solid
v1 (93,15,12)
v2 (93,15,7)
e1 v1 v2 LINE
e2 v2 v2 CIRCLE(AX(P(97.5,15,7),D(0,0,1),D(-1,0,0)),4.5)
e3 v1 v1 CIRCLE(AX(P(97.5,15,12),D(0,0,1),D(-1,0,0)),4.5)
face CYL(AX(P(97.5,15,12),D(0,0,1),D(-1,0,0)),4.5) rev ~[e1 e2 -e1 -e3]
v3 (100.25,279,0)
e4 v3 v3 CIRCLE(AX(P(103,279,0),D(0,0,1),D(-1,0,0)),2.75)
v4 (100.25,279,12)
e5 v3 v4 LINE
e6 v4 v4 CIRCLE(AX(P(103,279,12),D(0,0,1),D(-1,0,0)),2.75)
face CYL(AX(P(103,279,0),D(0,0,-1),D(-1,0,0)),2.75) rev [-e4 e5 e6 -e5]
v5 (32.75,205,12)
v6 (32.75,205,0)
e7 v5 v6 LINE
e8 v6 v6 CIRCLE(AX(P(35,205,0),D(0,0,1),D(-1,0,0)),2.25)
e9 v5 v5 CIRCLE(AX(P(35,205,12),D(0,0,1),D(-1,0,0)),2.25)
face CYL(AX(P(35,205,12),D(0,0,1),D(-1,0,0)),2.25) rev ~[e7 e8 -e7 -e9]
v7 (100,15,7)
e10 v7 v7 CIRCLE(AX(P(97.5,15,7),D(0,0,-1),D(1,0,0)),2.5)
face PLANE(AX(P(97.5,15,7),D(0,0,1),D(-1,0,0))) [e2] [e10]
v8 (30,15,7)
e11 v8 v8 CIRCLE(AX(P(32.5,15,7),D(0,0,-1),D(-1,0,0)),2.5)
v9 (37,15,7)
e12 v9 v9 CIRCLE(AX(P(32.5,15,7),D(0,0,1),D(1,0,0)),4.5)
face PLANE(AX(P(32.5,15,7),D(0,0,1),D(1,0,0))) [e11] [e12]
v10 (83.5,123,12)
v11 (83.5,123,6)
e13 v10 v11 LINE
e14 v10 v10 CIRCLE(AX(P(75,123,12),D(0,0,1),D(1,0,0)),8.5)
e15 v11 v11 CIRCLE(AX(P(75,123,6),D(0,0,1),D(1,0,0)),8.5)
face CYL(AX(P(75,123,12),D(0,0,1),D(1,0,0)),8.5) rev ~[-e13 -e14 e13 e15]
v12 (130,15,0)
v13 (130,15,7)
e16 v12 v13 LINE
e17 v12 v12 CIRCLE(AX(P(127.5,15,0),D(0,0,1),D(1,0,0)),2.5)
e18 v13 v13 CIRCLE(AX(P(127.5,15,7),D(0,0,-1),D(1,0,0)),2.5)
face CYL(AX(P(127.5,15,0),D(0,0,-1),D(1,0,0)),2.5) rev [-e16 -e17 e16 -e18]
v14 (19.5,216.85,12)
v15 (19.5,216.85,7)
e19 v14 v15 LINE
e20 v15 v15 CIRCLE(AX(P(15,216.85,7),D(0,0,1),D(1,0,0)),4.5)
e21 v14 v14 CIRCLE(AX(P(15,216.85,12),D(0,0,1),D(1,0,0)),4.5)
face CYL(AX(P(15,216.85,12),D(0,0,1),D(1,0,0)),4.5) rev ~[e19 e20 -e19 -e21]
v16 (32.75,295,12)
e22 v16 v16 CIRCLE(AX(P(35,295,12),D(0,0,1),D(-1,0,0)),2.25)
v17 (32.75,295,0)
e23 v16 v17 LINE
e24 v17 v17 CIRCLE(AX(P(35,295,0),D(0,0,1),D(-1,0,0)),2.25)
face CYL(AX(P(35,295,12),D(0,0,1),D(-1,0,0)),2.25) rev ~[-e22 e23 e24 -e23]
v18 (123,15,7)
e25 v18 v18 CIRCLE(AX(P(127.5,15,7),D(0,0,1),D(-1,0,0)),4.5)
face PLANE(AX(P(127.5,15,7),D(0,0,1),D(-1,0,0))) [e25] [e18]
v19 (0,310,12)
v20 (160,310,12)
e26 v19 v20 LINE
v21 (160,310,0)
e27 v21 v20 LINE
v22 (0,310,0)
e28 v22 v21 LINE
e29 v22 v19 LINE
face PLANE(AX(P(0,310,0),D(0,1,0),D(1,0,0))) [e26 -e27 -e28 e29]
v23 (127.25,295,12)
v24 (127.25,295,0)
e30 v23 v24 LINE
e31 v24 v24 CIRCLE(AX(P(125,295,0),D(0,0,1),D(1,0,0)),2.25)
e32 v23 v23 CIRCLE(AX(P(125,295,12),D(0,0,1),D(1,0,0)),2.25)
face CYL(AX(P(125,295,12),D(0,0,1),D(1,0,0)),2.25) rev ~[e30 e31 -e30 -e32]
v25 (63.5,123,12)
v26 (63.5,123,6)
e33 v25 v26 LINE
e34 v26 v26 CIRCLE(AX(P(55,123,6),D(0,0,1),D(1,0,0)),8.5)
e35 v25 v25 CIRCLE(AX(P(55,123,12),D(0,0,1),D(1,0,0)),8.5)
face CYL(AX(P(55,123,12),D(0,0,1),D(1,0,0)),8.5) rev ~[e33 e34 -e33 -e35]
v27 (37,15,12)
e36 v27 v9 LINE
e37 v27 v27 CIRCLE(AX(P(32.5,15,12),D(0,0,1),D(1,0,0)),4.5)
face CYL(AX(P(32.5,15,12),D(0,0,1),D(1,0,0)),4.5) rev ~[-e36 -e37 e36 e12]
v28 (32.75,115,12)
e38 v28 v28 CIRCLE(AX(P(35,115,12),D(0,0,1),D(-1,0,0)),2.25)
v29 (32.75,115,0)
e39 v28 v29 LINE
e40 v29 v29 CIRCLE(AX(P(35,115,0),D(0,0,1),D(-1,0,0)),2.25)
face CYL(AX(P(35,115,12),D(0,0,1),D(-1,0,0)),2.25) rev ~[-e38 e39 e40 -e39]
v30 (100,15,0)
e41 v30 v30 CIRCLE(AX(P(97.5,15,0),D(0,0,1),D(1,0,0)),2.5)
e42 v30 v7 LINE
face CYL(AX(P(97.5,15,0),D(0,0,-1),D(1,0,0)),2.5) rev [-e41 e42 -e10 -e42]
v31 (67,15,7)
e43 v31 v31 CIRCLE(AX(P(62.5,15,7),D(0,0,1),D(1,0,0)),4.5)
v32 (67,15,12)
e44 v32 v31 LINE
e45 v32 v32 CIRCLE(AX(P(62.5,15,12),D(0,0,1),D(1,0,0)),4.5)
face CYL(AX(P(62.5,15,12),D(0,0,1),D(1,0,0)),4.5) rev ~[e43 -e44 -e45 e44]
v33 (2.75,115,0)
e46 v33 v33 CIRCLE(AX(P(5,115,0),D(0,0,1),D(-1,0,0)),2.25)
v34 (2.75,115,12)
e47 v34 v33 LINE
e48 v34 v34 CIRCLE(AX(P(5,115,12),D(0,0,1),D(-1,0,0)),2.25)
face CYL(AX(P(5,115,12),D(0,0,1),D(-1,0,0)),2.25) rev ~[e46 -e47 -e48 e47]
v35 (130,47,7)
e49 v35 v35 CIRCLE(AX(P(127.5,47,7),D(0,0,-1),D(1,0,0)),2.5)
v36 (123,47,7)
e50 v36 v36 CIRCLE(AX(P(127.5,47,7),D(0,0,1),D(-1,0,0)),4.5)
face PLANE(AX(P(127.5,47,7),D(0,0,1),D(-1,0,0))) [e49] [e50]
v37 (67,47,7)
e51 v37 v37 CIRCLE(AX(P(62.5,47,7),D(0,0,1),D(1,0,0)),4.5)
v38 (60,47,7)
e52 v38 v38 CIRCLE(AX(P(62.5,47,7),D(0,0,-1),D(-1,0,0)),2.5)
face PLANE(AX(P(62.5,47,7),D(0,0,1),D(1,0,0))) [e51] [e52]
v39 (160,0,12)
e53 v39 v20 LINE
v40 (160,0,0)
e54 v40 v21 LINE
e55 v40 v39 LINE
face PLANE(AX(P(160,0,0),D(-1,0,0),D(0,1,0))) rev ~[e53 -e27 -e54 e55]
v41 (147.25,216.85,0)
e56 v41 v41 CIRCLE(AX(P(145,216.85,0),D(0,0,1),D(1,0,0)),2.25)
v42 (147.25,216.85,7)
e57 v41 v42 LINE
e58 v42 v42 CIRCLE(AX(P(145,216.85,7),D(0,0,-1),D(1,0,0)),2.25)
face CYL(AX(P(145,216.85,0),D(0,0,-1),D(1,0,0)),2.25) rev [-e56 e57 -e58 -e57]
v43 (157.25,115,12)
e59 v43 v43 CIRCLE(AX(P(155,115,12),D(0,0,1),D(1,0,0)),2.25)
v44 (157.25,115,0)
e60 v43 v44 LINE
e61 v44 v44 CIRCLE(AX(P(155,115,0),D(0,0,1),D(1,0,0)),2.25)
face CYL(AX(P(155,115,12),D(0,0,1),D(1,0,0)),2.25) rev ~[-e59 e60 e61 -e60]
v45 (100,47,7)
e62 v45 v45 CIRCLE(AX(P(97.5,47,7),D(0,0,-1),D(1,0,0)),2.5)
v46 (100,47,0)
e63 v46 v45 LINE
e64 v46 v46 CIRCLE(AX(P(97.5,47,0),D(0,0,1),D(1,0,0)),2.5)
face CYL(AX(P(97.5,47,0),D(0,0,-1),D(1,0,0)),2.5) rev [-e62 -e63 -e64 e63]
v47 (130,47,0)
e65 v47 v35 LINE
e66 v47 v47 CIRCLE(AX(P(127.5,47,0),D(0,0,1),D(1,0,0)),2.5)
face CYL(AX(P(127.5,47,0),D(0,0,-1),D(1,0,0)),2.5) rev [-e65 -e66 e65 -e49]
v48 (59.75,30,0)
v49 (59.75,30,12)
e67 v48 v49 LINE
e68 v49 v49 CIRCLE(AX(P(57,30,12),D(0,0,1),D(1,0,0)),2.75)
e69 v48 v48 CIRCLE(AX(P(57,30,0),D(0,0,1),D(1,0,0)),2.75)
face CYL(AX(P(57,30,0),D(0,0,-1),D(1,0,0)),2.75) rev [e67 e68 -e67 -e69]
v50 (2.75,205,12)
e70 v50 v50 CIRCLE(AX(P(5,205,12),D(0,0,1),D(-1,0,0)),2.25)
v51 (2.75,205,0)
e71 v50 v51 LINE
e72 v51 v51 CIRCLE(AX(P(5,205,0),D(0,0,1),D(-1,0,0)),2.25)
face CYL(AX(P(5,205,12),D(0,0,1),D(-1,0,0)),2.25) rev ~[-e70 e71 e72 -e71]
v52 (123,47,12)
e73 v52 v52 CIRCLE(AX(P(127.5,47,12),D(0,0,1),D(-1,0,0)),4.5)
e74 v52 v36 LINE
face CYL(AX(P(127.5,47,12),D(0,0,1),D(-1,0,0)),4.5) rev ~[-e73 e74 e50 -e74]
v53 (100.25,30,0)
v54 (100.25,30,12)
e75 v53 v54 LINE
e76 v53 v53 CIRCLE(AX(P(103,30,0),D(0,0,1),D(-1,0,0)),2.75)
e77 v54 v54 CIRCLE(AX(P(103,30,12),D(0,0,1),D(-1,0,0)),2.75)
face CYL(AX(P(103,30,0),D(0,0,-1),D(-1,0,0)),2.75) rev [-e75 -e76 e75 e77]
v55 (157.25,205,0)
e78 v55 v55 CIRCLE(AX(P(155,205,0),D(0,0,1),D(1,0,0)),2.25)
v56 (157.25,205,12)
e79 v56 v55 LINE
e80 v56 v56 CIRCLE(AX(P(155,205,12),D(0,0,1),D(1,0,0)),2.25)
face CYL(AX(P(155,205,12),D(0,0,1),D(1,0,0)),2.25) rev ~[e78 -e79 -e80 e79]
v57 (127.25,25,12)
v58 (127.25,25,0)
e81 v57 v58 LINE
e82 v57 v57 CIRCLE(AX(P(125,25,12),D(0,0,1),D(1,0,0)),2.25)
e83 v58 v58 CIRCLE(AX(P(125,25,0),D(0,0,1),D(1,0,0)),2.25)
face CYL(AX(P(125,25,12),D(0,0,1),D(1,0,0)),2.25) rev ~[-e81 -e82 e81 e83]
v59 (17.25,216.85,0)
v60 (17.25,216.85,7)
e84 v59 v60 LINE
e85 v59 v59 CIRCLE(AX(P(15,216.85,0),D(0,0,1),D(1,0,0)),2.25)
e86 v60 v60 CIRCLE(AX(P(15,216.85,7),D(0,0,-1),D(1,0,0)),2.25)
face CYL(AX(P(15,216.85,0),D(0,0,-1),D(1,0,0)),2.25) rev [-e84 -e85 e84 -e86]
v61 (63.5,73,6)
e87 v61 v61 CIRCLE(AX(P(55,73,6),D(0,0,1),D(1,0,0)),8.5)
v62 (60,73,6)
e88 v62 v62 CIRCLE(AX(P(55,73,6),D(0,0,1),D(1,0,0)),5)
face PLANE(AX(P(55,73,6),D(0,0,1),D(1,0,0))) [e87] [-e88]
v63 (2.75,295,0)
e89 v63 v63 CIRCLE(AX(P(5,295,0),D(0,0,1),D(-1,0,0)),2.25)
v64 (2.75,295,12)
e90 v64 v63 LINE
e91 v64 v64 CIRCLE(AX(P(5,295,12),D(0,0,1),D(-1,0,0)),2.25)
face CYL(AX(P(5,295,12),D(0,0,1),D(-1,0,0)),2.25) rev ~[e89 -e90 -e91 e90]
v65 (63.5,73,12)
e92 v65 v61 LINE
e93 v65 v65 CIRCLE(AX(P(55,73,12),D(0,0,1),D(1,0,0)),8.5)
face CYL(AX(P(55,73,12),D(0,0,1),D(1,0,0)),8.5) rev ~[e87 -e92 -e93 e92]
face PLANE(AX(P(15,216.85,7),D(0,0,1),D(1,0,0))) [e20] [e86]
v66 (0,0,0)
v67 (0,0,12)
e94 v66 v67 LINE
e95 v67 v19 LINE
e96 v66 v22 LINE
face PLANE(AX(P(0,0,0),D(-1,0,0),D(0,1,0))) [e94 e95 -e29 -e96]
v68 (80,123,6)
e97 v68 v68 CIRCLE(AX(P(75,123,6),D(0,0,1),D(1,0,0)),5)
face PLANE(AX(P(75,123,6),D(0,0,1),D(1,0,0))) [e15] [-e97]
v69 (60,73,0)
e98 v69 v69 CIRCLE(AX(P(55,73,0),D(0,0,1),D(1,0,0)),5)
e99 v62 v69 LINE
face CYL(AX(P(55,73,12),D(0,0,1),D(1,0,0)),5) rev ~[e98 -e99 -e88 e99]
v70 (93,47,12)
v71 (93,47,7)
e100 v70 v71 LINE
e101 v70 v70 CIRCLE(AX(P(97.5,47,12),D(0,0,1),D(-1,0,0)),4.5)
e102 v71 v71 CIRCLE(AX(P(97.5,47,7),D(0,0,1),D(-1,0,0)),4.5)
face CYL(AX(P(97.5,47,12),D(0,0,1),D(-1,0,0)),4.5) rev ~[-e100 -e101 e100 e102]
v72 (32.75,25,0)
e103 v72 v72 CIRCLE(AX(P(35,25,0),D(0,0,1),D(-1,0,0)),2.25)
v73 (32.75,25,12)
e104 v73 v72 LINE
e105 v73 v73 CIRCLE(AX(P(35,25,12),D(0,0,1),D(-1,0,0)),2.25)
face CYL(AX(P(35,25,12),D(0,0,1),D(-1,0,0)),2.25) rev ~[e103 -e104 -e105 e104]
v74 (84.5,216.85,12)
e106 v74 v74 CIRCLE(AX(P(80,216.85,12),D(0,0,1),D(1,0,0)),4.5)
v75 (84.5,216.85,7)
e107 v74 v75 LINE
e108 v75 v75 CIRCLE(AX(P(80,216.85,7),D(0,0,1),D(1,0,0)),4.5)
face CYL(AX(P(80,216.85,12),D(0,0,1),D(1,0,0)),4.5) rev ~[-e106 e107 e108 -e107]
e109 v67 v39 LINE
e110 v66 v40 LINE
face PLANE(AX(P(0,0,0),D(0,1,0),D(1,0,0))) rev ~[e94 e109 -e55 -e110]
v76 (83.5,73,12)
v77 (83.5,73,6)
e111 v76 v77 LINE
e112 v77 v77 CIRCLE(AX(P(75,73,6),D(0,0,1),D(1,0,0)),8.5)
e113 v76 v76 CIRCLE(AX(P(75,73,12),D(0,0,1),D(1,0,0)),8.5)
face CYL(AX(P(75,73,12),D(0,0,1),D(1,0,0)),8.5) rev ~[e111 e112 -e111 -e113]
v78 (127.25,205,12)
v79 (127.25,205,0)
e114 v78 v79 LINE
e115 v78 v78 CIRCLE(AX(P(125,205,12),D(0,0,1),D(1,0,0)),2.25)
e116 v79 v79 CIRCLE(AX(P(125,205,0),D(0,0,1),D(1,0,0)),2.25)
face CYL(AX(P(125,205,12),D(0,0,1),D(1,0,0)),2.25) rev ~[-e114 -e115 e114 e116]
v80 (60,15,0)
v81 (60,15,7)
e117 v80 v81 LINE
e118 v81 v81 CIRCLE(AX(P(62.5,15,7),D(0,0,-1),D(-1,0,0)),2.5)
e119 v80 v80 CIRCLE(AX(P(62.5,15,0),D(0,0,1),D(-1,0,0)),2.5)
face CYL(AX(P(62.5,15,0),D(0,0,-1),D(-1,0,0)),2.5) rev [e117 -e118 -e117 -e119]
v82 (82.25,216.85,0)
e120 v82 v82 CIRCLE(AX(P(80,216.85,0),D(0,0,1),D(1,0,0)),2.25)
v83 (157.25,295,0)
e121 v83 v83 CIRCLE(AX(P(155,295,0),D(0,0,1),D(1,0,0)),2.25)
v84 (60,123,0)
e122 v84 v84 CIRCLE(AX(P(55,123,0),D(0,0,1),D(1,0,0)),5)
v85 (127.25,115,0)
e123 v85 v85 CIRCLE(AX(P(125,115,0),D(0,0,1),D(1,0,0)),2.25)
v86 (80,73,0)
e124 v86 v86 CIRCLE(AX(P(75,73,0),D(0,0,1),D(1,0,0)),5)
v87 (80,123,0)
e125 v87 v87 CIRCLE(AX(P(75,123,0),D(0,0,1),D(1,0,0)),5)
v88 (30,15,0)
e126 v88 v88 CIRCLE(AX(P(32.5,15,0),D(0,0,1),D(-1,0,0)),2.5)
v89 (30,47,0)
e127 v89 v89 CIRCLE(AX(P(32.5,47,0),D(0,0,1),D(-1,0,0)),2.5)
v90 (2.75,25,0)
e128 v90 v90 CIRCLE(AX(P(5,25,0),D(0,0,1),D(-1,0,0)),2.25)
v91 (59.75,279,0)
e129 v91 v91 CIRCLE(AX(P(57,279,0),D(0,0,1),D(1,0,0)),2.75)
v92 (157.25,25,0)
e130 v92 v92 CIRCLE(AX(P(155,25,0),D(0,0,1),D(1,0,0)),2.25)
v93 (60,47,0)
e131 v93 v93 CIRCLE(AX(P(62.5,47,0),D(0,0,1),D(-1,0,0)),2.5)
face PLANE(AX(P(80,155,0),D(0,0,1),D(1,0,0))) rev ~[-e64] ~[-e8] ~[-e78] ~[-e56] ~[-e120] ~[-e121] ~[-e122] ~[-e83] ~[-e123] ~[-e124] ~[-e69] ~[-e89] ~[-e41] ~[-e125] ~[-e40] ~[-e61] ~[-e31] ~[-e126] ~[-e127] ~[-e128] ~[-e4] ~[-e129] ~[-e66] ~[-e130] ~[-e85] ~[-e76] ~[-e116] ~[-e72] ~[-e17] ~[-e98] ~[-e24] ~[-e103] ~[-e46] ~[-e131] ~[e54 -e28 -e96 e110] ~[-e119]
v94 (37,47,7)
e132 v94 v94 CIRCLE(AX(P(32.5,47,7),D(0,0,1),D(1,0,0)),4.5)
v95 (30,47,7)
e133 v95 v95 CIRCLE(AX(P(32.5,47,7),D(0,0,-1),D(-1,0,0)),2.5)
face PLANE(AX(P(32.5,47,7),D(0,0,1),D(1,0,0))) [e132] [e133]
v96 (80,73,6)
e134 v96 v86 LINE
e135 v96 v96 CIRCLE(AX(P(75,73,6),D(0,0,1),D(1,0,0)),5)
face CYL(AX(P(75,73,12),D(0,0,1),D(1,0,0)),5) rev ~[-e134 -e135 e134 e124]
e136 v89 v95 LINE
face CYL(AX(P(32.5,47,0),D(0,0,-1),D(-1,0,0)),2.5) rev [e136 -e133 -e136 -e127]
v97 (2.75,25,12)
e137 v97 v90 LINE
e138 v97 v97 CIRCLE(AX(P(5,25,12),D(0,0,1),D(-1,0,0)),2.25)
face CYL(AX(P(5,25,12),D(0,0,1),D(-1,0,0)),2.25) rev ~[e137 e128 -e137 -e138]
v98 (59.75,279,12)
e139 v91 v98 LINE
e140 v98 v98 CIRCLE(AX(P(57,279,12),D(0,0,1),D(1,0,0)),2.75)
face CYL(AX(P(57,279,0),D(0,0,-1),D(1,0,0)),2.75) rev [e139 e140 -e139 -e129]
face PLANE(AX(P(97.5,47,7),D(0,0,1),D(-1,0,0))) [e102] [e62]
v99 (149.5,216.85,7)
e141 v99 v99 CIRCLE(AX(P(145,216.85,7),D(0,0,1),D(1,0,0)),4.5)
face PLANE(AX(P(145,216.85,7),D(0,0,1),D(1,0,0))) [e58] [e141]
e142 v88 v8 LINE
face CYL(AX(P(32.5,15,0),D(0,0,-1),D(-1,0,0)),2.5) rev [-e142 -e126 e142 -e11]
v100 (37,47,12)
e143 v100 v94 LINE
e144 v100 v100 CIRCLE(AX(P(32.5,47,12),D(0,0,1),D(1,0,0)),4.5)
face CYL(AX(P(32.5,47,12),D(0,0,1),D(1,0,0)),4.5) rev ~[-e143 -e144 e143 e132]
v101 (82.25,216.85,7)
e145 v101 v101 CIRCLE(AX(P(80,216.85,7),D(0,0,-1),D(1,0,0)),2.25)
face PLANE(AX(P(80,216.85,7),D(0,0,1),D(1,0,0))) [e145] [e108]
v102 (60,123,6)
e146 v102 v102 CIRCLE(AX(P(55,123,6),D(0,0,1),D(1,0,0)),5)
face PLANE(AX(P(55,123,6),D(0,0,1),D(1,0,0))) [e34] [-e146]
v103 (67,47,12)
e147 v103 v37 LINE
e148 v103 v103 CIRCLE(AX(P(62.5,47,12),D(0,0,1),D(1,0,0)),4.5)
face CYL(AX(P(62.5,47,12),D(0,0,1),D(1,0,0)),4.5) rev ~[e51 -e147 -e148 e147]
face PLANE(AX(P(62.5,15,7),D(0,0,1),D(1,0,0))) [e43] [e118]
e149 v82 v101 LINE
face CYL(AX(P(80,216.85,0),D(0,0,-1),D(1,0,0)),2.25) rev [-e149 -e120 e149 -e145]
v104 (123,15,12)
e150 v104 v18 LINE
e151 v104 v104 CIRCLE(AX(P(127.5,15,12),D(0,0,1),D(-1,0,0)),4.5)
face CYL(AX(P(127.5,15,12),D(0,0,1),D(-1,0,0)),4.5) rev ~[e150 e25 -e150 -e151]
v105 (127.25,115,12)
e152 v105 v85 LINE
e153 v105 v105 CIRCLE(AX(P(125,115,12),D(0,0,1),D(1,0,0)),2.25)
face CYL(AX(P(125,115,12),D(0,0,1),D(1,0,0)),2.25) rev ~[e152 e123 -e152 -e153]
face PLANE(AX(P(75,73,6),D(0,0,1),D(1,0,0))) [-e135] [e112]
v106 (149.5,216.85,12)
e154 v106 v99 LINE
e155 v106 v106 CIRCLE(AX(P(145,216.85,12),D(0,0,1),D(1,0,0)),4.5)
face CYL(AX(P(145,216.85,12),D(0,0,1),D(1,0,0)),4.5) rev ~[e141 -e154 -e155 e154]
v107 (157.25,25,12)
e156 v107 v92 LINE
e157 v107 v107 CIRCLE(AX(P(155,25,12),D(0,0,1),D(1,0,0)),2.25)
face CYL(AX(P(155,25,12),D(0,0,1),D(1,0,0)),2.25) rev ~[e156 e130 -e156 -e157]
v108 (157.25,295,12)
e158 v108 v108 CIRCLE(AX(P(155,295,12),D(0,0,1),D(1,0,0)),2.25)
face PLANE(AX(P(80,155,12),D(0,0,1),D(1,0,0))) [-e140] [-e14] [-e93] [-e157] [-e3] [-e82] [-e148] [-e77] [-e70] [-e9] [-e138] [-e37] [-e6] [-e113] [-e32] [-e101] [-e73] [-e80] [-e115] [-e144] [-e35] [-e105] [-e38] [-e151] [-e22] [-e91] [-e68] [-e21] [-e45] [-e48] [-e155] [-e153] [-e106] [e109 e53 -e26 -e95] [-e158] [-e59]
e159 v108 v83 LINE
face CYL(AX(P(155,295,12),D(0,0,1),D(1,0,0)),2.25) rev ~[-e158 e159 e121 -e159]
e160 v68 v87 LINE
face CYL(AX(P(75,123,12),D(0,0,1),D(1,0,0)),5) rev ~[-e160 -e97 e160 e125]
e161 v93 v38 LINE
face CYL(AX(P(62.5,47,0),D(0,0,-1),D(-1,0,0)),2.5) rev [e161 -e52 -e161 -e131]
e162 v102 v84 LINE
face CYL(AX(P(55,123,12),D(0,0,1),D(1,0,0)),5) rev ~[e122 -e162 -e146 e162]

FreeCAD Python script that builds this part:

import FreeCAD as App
import Part
import Sketcher


def add_polygon(sketch, points):
    """Adds a closed chain of lines whose ends are joined by coincident constraints."""
    first, n = sketch.GeometryCount, len(points)
    for a, b in zip(points, points[1:] + points[:1]):
        sketch.addGeometry(Part.LineSegment(App.Vector(*a, 0), App.Vector(*b, 0)), False)
    for i in range(n):
        sketch.addConstraint(Sketcher.Constraint("Coincident", first + i, 2, first + (i + 1) % n, 1))

doc = App.newDocument("Part")
body = doc.addObject("PartDesign::Body", "Body")

# Sketch on XY plane
sketch1 = body.newObject("Sketcher::SketchObject", "Sketch")
sketch1.AttachmentSupport = (doc.getObject("XY_Plane"), [""])
sketch1.MapMode = "FlatFace"
add_polygon(sketch1, [(0, 310), (0, 0), (160, 0), (160, 310)])  # lines 0-3
sketch1.addGeometry(Part.Circle(App.Vector(32.5, 15, 0), App.Vector(0, 0, 1), 2.5), False)  # 4
sketch1.addGeometry(Part.Circle(App.Vector(32.5, 47, 0), App.Vector(0, 0, 1), 2.5), False)  # 5
sketch1.addGeometry(Part.Circle(App.Vector(62.5, 15, 0), App.Vector(0, 0, 1), 2.5), False)  # 6
sketch1.addGeometry(Part.Circle(App.Vector(57, 30, 0), App.Vector(0, 0, 1), 2.75), False)  # 7
sketch1.addGeometry(Part.Circle(App.Vector(62.5, 47, 0), App.Vector(0, 0, 1), 2.5), False)  # 8
sketch1.addGeometry(Part.Circle(App.Vector(97.5, 15, 0), App.Vector(0, 0, 1), 2.5), False)  # 9
sketch1.addGeometry(Part.Circle(App.Vector(103, 30, 0), App.Vector(0, 0, 1), 2.75), False)  # 10
sketch1.addGeometry(Part.Circle(App.Vector(97.5, 47, 0), App.Vector(0, 0, 1), 2.5), False)  # 11
sketch1.addGeometry(Part.Circle(App.Vector(127.5, 15, 0), App.Vector(0, 0, 1), 2.5), False)  # 12
sketch1.addGeometry(Part.Circle(App.Vector(127.5, 47, 0), App.Vector(0, 0, 1), 2.5), False)  # 13
sketch1.addGeometry(Part.Circle(App.Vector(15, 216.85, 0), App.Vector(0, 0, 1), 2.25), False)  # 14
sketch1.addGeometry(Part.Circle(App.Vector(57, 279, 0), App.Vector(0, 0, 1), 2.75), False)  # 15
sketch1.addGeometry(Part.Circle(App.Vector(80, 216.85, 0), App.Vector(0, 0, 1), 2.25), False)  # 16
sketch1.addGeometry(Part.Circle(App.Vector(103, 279, 0), App.Vector(0, 0, 1), 2.75), False)  # 17
sketch1.addGeometry(Part.Circle(App.Vector(145, 216.85, 0), App.Vector(0, 0, 1), 2.25), False)  # 18
sketch1.addConstraint([
    Sketcher.Constraint("Vertical", 0),
    Sketcher.Constraint("Horizontal", 1),
    Sketcher.Constraint("Vertical", 2),
    Sketcher.Constraint("Horizontal", 3),
    Sketcher.Constraint("Coincident", 0, 2, -1, 1),
    Sketcher.Constraint("Equal", 4, 5),
    Sketcher.Constraint("Equal", 5, 6),
    Sketcher.Constraint("Equal", 6, 8),
    Sketcher.Constraint("Equal", 8, 9),
    Sketcher.Constraint("Equal", 7, 10),
    Sketcher.Constraint("Equal", 9, 11),
    Sketcher.Constraint("Equal", 11, 12),
    Sketcher.Constraint("Equal", 12, 13),
    Sketcher.Constraint("Equal", 10, 15),
    Sketcher.Constraint("Equal", 14, 16),
    Sketcher.Constraint("Equal", 15, 17),
    Sketcher.Constraint("Equal", 16, 18),
    Sketcher.Constraint("Horizontal", 4, 3, 6, 3),
    Sketcher.Constraint("Horizontal", 5, 3, 8, 3),
    Sketcher.Constraint("Horizontal", 6, 3, 9, 3),
    Sketcher.Constraint("Horizontal", 7, 3, 10, 3),
    Sketcher.Constraint("Horizontal", 8, 3, 11, 3),
    Sketcher.Constraint("Horizontal", 9, 3, 12, 3),
    Sketcher.Constraint("Horizontal", 11, 3, 13, 3),
    Sketcher.Constraint("Horizontal", 14, 3, 16, 3),
    Sketcher.Constraint("Horizontal", 15, 3, 17, 3),
    Sketcher.Constraint("Horizontal", 16, 3, 18, 3),
    Sketcher.Constraint("Vertical", 4, 3, 5, 3),
    Sketcher.Constraint("Vertical", 6, 3, 8, 3),
    Sketcher.Constraint("Vertical", 9, 3, 11, 3),
    Sketcher.Constraint("Vertical", 12, 3, 13, 3),
    Sketcher.Constraint("Vertical", 7, 3, 15, 3),
    Sketcher.Constraint("Vertical", 10, 3, 17, 3),
    Sketcher.Constraint("Diameter", 4, 5.0),
    Sketcher.Constraint("Diameter", 7, 5.5),
    Sketcher.Constraint("Diameter", 14, 4.5),
    Sketcher.Constraint("DistanceX", 1, 1, 1, 2, 160.0),
    Sketcher.Constraint("DistanceY", 0, 2, 0, 1, 310.0),
    Sketcher.Constraint("DistanceY", -1, 1, 4, 3, 15.0),
    Sketcher.Constraint("DistanceY", -1, 1, 5, 3, 47.0),
    Sketcher.Constraint("DistanceX", -1, 1, 7, 3, 57.0),
    Sketcher.Constraint("DistanceY", -1, 1, 7, 3, 30.0),
    Sketcher.Constraint("DistanceX", -1, 1, 10, 3, 103.0),
    Sketcher.Constraint("DistanceX", -1, 1, 14, 3, 15.0),
    Sketcher.Constraint("DistanceY", -1, 1, 15, 3, 279.0),
    Sketcher.Constraint("DistanceX", -1, 1, 16, 3, 80.0),
    Sketcher.Constraint("DistanceX", -1, 1, 18, 3, 145.0),
    Sketcher.Constraint("DistanceX", 4, 3, 6, 3, 30.0),
    Sketcher.Constraint("DistanceX", 6, 3, 9, 3, 35.0),
    Sketcher.Constraint("DistanceX", 9, 3, 12, 3, 30.0),
    Sketcher.Constraint("DistanceX", -1, 1, 4, 3, 32.5),
    Sketcher.Constraint("DistanceY", -1, 1, 14, 3, 216.85),
])
pad1 = body.newObject("PartDesign::Pad", "Pad")
pad1.Profile = sketch1
pad1.Length = 12

# Sketch on XY plane
sketch2 = body.newObject("Sketcher::SketchObject", "Sketch001")
sketch2.AttachmentSupport = (doc.getObject("XY_Plane"), [""])
sketch2.MapMode = "FlatFace"
sketch2.AttachmentOffset = App.Placement(App.Vector(0, 0, 12), App.Rotation())
sketch2.addGeometry([
    Part.Circle(App.Vector(32.5, 47, 0), App.Vector(0, 0, 1), 4.5),  # 0
    Part.Circle(App.Vector(32.5, 15, 0), App.Vector(0, 0, 1), 4.5),  # 1
    Part.Circle(App.Vector(62.5, 15, 0), App.Vector(0, 0, 1), 4.5),  # 2
    Part.Circle(App.Vector(62.5, 47, 0), App.Vector(0, 0, 1), 4.5),  # 3
    Part.Circle(App.Vector(127.5, 15, 0), App.Vector(0, 0, 1), 4.5),  # 4
    Part.Circle(App.Vector(97.5, 15, 0), App.Vector(0, 0, 1), 4.5),  # 5
    Part.Circle(App.Vector(97.5, 47, 0), App.Vector(0, 0, 1), 4.5),  # 6
    Part.Circle(App.Vector(127.5, 47, 0), App.Vector(0, 0, 1), 4.5),  # 7
    Part.Circle(App.Vector(15, 216.85, 0), App.Vector(0, 0, 1), 4.5),  # 8
    Part.Circle(App.Vector(80, 216.85, 0), App.Vector(0, 0, 1), 4.5),  # 9
    Part.Circle(App.Vector(145, 216.85, 0), App.Vector(0, 0, 1), 4.5),  # 10
], False)
sketch2.addConstraint([
    Sketcher.Constraint("Equal", 0, 1),
    Sketcher.Constraint("Equal", 1, 2),
    Sketcher.Constraint("Equal", 2, 3),
    Sketcher.Constraint("Equal", 3, 4),
    Sketcher.Constraint("Equal", 4, 5),
    Sketcher.Constraint("Equal", 5, 6),
    Sketcher.Constraint("Equal", 6, 7),
    Sketcher.Constraint("Equal", 7, 8),
    Sketcher.Constraint("Equal", 8, 9),
    Sketcher.Constraint("Equal", 9, 10),
    Sketcher.Constraint("Horizontal", 1, 3, 2, 3),
    Sketcher.Constraint("Horizontal", 0, 3, 3, 3),
    Sketcher.Constraint("Horizontal", 2, 3, 4, 3),
    Sketcher.Constraint("Horizontal", 4, 3, 5, 3),
    Sketcher.Constraint("Horizontal", 3, 3, 6, 3),
    Sketcher.Constraint("Horizontal", 6, 3, 7, 3),
    Sketcher.Constraint("Horizontal", 8, 3, 9, 3),
    Sketcher.Constraint("Horizontal", 9, 3, 10, 3),
    Sketcher.Constraint("Vertical", 0, 3, 1, 3),
    Sketcher.Constraint("Vertical", 2, 3, 3, 3),
    Sketcher.Constraint("Vertical", 5, 3, 6, 3),
    Sketcher.Constraint("Vertical", 4, 3, 7, 3),
    Sketcher.Constraint("Diameter", 0, 9.0),
    Sketcher.Constraint("DistanceY", -1, 1, 0, 3, 47.0),
    Sketcher.Constraint("DistanceY", -1, 1, 1, 3, 15.0),
    Sketcher.Constraint("DistanceX", -1, 1, 8, 3, 15.0),
    Sketcher.Constraint("DistanceX", -1, 1, 9, 3, 80.0),
    Sketcher.Constraint("DistanceX", -1, 1, 10, 3, 145.0),
    Sketcher.Constraint("DistanceX", 1, 3, 2, 3, 30.0),
    Sketcher.Constraint("DistanceX", 2, 3, 4, 3, 65.0),
    Sketcher.Constraint("DistanceX", 5, 3, 4, 3, 30.0),
    Sketcher.Constraint("DistanceX", -1, 1, 0, 3, 32.5),
    Sketcher.Constraint("DistanceY", -1, 1, 8, 3, 216.85),
])
pocket1 = body.newObject("PartDesign::Pocket", "Pocket")
pocket1.Profile = sketch2
pocket1.Length = 5

# Sketch on XY plane
sketch3 = body.newObject("Sketcher::SketchObject", "Sketch002")
sketch3.AttachmentSupport = (doc.getObject("XY_Plane"), [""])
sketch3.MapMode = "FlatFace"
sketch3.AttachmentOffset = App.Placement(App.Vector(0, 0, 12), App.Rotation())
sketch3.addGeometry(Part.Circle(App.Vector(155, 25, 0), App.Vector(0, 0, 1), 2.25), False)
sketch3.addConstraint([
    Sketcher.Constraint("Diameter", 0, 4.5),
    Sketcher.Constraint("DistanceX", -1, 1, 0, 3, 155.0),
    Sketcher.Constraint("DistanceY", -1, 1, 0, 3, 25.0),
])
pocket2 = body.newObject("PartDesign::Pocket", "Pocket001")
pocket2.Profile = sketch3
pocket2.Type = "UpToFirst"

# Sketch on XY plane
sketch4 = body.newObject("Sketcher::SketchObject", "Sketch003")
sketch4.AttachmentSupport = (doc.getObject("XY_Plane"), [""])
sketch4.MapMode = "FlatFace"
sketch4.AttachmentOffset = App.Placement(App.Vector(0, 0, 12), App.Rotation())
sketch4.addGeometry(Part.Circle(App.Vector(125, 25, 0), App.Vector(0, 0, 1), 2.25), False)
sketch4.addConstraint([
    Sketcher.Constraint("Diameter", 0, 4.5),
    Sketcher.Constraint("DistanceX", -1, 1, 0, 3, 125.0),
    Sketcher.Constraint("DistanceY", -1, 1, 0, 3, 25.0),
])
pocket3 = body.newObject("PartDesign::Pocket", "Pocket002")
pocket3.Profile = sketch4
pocket3.Type = "UpToFirst"

# Sketch on XY plane
sketch5 = body.newObject("Sketcher::SketchObject", "Sketch004")
sketch5.AttachmentSupport = (doc.getObject("XY_Plane"), [""])
sketch5.MapMode = "FlatFace"
sketch5.AttachmentOffset = App.Placement(App.Vector(0, 0, 12), App.Rotation())
sketch5.addGeometry(Part.Circle(App.Vector(125, 115, 0), App.Vector(0, 0, 1), 2.25), False)
sketch5.addConstraint([
    Sketcher.Constraint("Diameter", 0, 4.5),
    Sketcher.Constraint("DistanceX", -1, 1, 0, 3, 125.0),
    Sketcher.Constraint("DistanceY", -1, 1, 0, 3, 115.0),
])
pocket4 = body.newObject("PartDesign::Pocket", "Pocket003")
pocket4.Profile = sketch5
pocket4.Type = "UpToFirst"

# Sketch on XY plane
sketch6 = body.newObject("Sketcher::SketchObject", "Sketch005")
sketch6.AttachmentSupport = (doc.getObject("XY_Plane"), [""])
sketch6.MapMode = "FlatFace"
sketch6.AttachmentOffset = App.Placement(App.Vector(0, 0, 12), App.Rotation())
sketch6.addGeometry(Part.Circle(App.Vector(125, 205, 0), App.Vector(0, 0, 1), 2.25), False)
sketch6.addConstraint([
    Sketcher.Constraint("Diameter", 0, 4.5),
    Sketcher.Constraint("DistanceX", -1, 1, 0, 3, 125.0),
    Sketcher.Constraint("DistanceY", -1, 1, 0, 3, 205.0),
])
pocket5 = body.newObject("PartDesign::Pocket", "Pocket004")
pocket5.Profile = sketch6
pocket5.Type = "UpToFirst"

# Sketch on XY plane
sketch7 = body.newObject("Sketcher::SketchObject", "Sketch006")
sketch7.AttachmentSupport = (doc.getObject("XY_Plane"), [""])
sketch7.MapMode = "FlatFace"
sketch7.AttachmentOffset = App.Placement(App.Vector(0, 0, 12), App.Rotation())
sketch7.addGeometry(Part.Circle(App.Vector(125, 295, 0), App.Vector(0, 0, 1), 2.25), False)
sketch7.addConstraint([
    Sketcher.Constraint("Diameter", 0, 4.5),
    Sketcher.Constraint("DistanceX", -1, 1, 0, 3, 125.0),
    Sketcher.Constraint("DistanceY", -1, 1, 0, 3, 295.0),
])
pocket6 = body.newObject("PartDesign::Pocket", "Pocket005")
pocket6.Profile = sketch7
pocket6.Type = "UpToFirst"

# Sketch on XY plane
sketch8 = body.newObject("Sketcher::SketchObject", "Sketch007")
sketch8.AttachmentSupport = (doc.getObject("XY_Plane"), [""])
sketch8.MapMode = "FlatFace"
sketch8.AttachmentOffset = App.Placement(App.Vector(0, 0, 12), App.Rotation())
sketch8.addGeometry(Part.Circle(App.Vector(155, 115, 0), App.Vector(0, 0, 1), 2.25), False)
sketch8.addConstraint([
    Sketcher.Constraint("Diameter", 0, 4.5),
    Sketcher.Constraint("DistanceX", -1, 1, 0, 3, 155.0),
    Sketcher.Constraint("DistanceY", -1, 1, 0, 3, 115.0),
])
pocket7 = body.newObject("PartDesign::Pocket", "Pocket006")
pocket7.Profile = sketch8
pocket7.Type = "UpToFirst"

# Sketch on XY plane
sketch9 = body.newObject("Sketcher::SketchObject", "Sketch008")
sketch9.AttachmentSupport = (doc.getObject("XY_Plane"), [""])
sketch9.MapMode = "FlatFace"
sketch9.AttachmentOffset = App.Placement(App.Vector(0, 0, 12), App.Rotation())
sketch9.addGeometry(Part.Circle(App.Vector(155, 205, 0), App.Vector(0, 0, 1), 2.25), False)
sketch9.addConstraint([
    Sketcher.Constraint("Diameter", 0, 4.5),
    Sketcher.Constraint("DistanceX", -1, 1, 0, 3, 155.0),
    Sketcher.Constraint("DistanceY", -1, 1, 0, 3, 205.0),
])
pocket8 = body.newObject("PartDesign::Pocket", "Pocket007")
pocket8.Profile = sketch9
pocket8.Type = "UpToFirst"

# Sketch on XY plane
sketch10 = body.newObject("Sketcher::SketchObject", "Sketch009")
sketch10.AttachmentSupport = (doc.getObject("XY_Plane"), [""])
sketch10.MapMode = "FlatFace"
sketch10.AttachmentOffset = App.Placement(App.Vector(0, 0, 12), App.Rotation())
sketch10.addGeometry(Part.Circle(App.Vector(155, 295, 0), App.Vector(0, 0, 1), 2.25), False)
sketch10.addConstraint([
    Sketcher.Constraint("Diameter", 0, 4.5),
    Sketcher.Constraint("DistanceX", -1, 1, 0, 3, 155.0),
    Sketcher.Constraint("DistanceY", -1, 1, 0, 3, 295.0),
])
pocket9 = body.newObject("PartDesign::Pocket", "Pocket008")
pocket9.Profile = sketch10
pocket9.Type = "UpToFirst"

# Sketch on XY plane
sketch11 = body.newObject("Sketcher::SketchObject", "Sketch010")
sketch11.AttachmentSupport = (doc.getObject("XY_Plane"), [""])
sketch11.MapMode = "FlatFace"
sketch11.AttachmentOffset = App.Placement(App.Vector(0, 0, 12), App.Rotation())
sketch11.addGeometry(Part.Circle(App.Vector(5, 295, 0), App.Vector(0, 0, 1), 2.25), False)
sketch11.addConstraint([
    Sketcher.Constraint("Diameter", 0, 4.5),
    Sketcher.Constraint("DistanceX", -1, 1, 0, 3, 5.0),
    Sketcher.Constraint("DistanceY", -1, 1, 0, 3, 295.0),
])
pocket10 = body.newObject("PartDesign::Pocket", "Pocket009")
pocket10.Profile = sketch11
pocket10.Type = "UpToFirst"

# Sketch on XY plane
sketch12 = body.newObject("Sketcher::SketchObject", "Sketch011")
sketch12.AttachmentSupport = (doc.getObject("XY_Plane"), [""])
sketch12.MapMode = "FlatFace"
sketch12.AttachmentOffset = App.Placement(App.Vector(0, 0, 12), App.Rotation())
sketch12.addGeometry(Part.Circle(App.Vector(35, 295, 0), App.Vector(0, 0, 1), 2.25), False)
sketch12.addConstraint([
    Sketcher.Constraint("Diameter", 0, 4.5),
    Sketcher.Constraint("DistanceX", -1, 1, 0, 3, 35.0),
    Sketcher.Constraint("DistanceY", -1, 1, 0, 3, 295.0),
])
pocket11 = body.newObject("PartDesign::Pocket", "Pocket010")
pocket11.Profile = sketch12
pocket11.Type = "UpToFirst"

# Sketch on XY plane
sketch13 = body.newObject("Sketcher::SketchObject", "Sketch012")
sketch13.AttachmentSupport = (doc.getObject("XY_Plane"), [""])
sketch13.MapMode = "FlatFace"
sketch13.AttachmentOffset = App.Placement(App.Vector(0, 0, 12), App.Rotation())
sketch13.addGeometry(Part.Circle(App.Vector(5, 205, 0), App.Vector(0, 0, 1), 2.25), False)
sketch13.addConstraint([
    Sketcher.Constraint("Diameter", 0, 4.5),
    Sketcher.Constraint("DistanceX", -1, 1, 0, 3, 5.0),
    Sketcher.Constraint("DistanceY", -1, 1, 0, 3, 205.0),
])
pocket12 = body.newObject("PartDesign::Pocket", "Pocket011")
pocket12.Profile = sketch13
pocket12.Type = "UpToFirst"

# Sketch on XY plane
sketch14 = body.newObject("Sketcher::SketchObject", "Sketch013")
sketch14.AttachmentSupport = (doc.getObject("XY_Plane"), [""])
sketch14.MapMode = "FlatFace"
sketch14.AttachmentOffset = App.Placement(App.Vector(0, 0, 12), App.Rotation())
sketch14.addGeometry(Part.Circle(App.Vector(35, 205, 0), App.Vector(0, 0, 1), 2.25), False)
sketch14.addConstraint([
    Sketcher.Constraint("Diameter", 0, 4.5),
    Sketcher.Constraint("DistanceX", -1, 1, 0, 3, 35.0),
    Sketcher.Constraint("DistanceY", -1, 1, 0, 3, 205.0),
])
pocket13 = body.newObject("PartDesign::Pocket", "Pocket012")
pocket13.Profile = sketch14
pocket13.Type = "UpToFirst"

# Sketch on XY plane
sketch15 = body.newObject("Sketcher::SketchObject", "Sketch014")
sketch15.AttachmentSupport = (doc.getObject("XY_Plane"), [""])
sketch15.MapMode = "FlatFace"
sketch15.AttachmentOffset = App.Placement(App.Vector(0, 0, 12), App.Rotation())
sketch15.addGeometry(Part.Circle(App.Vector(35, 115, 0), App.Vector(0, 0, 1), 2.25), False)
sketch15.addConstraint([
    Sketcher.Constraint("Diameter", 0, 4.5),
    Sketcher.Constraint("DistanceX", -1, 1, 0, 3, 35.0),
    Sketcher.Constraint("DistanceY", -1, 1, 0, 3, 115.0),
])
pocket14 = body.newObject("PartDesign::Pocket", "Pocket013")
pocket14.Profile = sketch15
pocket14.Type = "UpToFirst"

# Sketch on XY plane
sketch16 = body.newObject("Sketcher::SketchObject", "Sketch015")
sketch16.AttachmentSupport = (doc.getObject("XY_Plane"), [""])
sketch16.MapMode = "FlatFace"
sketch16.AttachmentOffset = App.Placement(App.Vector(0, 0, 12), App.Rotation())
sketch16.addGeometry(Part.Circle(App.Vector(5, 115, 0), App.Vector(0, 0, 1), 2.25), False)
sketch16.addConstraint([
    Sketcher.Constraint("Diameter", 0, 4.5),
    Sketcher.Constraint("DistanceX", -1, 1, 0, 3, 5.0),
    Sketcher.Constraint("DistanceY", -1, 1, 0, 3, 115.0),
])
pocket15 = body.newObject("PartDesign::Pocket", "Pocket014")
pocket15.Profile = sketch16
pocket15.Type = "UpToFirst"

# Sketch on XY plane
sketch17 = body.newObject("Sketcher::SketchObject", "Sketch016")
sketch17.AttachmentSupport = (doc.getObject("XY_Plane"), [""])
sketch17.MapMode = "FlatFace"
sketch17.AttachmentOffset = App.Placement(App.Vector(0, 0, 12), App.Rotation())
sketch17.addGeometry(Part.Circle(App.Vector(35, 25, 0), App.Vector(0, 0, 1), 2.25), False)
sketch17.addConstraint([
    Sketcher.Constraint("Diameter", 0, 4.5),
    Sketcher.Constraint("DistanceX", -1, 1, 0, 3, 35.0),
    Sketcher.Constraint("DistanceY", -1, 1, 0, 3, 25.0),
])
pocket16 = body.newObject("PartDesign::Pocket", "Pocket015")
pocket16.Profile = sketch17
pocket16.Type = "UpToFirst"

# Sketch on XY plane
sketch18 = body.newObject("Sketcher::SketchObject", "Sketch017")
sketch18.AttachmentSupport = (doc.getObject("XY_Plane"), [""])
sketch18.MapMode = "FlatFace"
sketch18.AttachmentOffset = App.Placement(App.Vector(0, 0, 12), App.Rotation())
sketch18.addGeometry(Part.Circle(App.Vector(5, 25, 0), App.Vector(0, 0, 1), 2.25), False)
sketch18.addConstraint([
    Sketcher.Constraint("Diameter", 0, 4.5),
    Sketcher.Constraint("DistanceX", -1, 1, 0, 3, 5.0),
    Sketcher.Constraint("DistanceY", -1, 1, 0, 3, 25.0),
])
pocket17 = body.newObject("PartDesign::Pocket", "Pocket016")
pocket17.Profile = sketch18
pocket17.Type = "UpToFirst"

# Sketch on XY plane
sketch19 = body.newObject("Sketcher::SketchObject", "Sketch018")
sketch19.AttachmentSupport = (doc.getObject("XY_Plane"), [""])
sketch19.MapMode = "FlatFace"
sketch19.AttachmentOffset = App.Placement(App.Vector(0, 0, 12), App.Rotation())
sketch19.addGeometry(Part.Circle(App.Vector(55, 73, 0), App.Vector(0, 0, 1), 5), False)
sketch19.addConstraint([
    Sketcher.Constraint("Diameter", 0, 10.0),
    Sketcher.Constraint("DistanceX", -1, 1, 0, 3, 55.0),
    Sketcher.Constraint("DistanceY", -1, 1, 0, 3, 73.0),
])
pocket18 = body.newObject("PartDesign::Pocket", "Pocket017")
pocket18.Profile = sketch19
pocket18.Type = "UpToFirst"

# Sketch on XY plane
sketch20 = body.newObject("Sketcher::SketchObject", "Sketch019")
sketch20.AttachmentSupport = (doc.getObject("XY_Plane"), [""])
sketch20.MapMode = "FlatFace"
sketch20.AttachmentOffset = App.Placement(App.Vector(0, 0, 12), App.Rotation())
sketch20.addGeometry(Part.Circle(App.Vector(75, 73, 0), App.Vector(0, 0, 1), 5), False)
sketch20.addConstraint([
    Sketcher.Constraint("Diameter", 0, 10.0),
    Sketcher.Constraint("DistanceX", -1, 1, 0, 3, 75.0),
    Sketcher.Constraint("DistanceY", -1, 1, 0, 3, 73.0),
])
pocket19 = body.newObject("PartDesign::Pocket", "Pocket018")
pocket19.Profile = sketch20
pocket19.Type = "UpToFirst"

# Sketch on XY plane
sketch21 = body.newObject("Sketcher::SketchObject", "Sketch020")
sketch21.AttachmentSupport = (doc.getObject("XY_Plane"), [""])
sketch21.MapMode = "FlatFace"
sketch21.AttachmentOffset = App.Placement(App.Vector(0, 0, 12), App.Rotation())
sketch21.addGeometry(Part.Circle(App.Vector(75, 123, 0), App.Vector(0, 0, 1), 5), False)
sketch21.addConstraint([
    Sketcher.Constraint("Diameter", 0, 10.0),
    Sketcher.Constraint("DistanceX", -1, 1, 0, 3, 75.0),
    Sketcher.Constraint("DistanceY", -1, 1, 0, 3, 123.0),
])
pocket20 = body.newObject("PartDesign::Pocket", "Pocket019")
pocket20.Profile = sketch21
pocket20.Type = "UpToFirst"

# Sketch on XY plane
sketch22 = body.newObject("Sketcher::SketchObject", "Sketch021")
sketch22.AttachmentSupport = (doc.getObject("XY_Plane"), [""])
sketch22.MapMode = "FlatFace"
sketch22.AttachmentOffset = App.Placement(App.Vector(0, 0, 12), App.Rotation())
sketch22.addGeometry(Part.Circle(App.Vector(55, 123, 0), App.Vector(0, 0, 1), 5), False)
sketch22.addConstraint([
    Sketcher.Constraint("Diameter", 0, 10.0),
    Sketcher.Constraint("DistanceX", -1, 1, 0, 3, 55.0),
    Sketcher.Constraint("DistanceY", -1, 1, 0, 3, 123.0),
])
pocket21 = body.newObject("PartDesign::Pocket", "Pocket020")
pocket21.Profile = sketch22
pocket21.Type = "UpToFirst"

# Sketch on XY plane
sketch23 = body.newObject("Sketcher::SketchObject", "Sketch022")
sketch23.AttachmentSupport = (doc.getObject("XY_Plane"), [""])
sketch23.MapMode = "FlatFace"
sketch23.AttachmentOffset = App.Placement(App.Vector(0, 0, 12), App.Rotation())
sketch23.addGeometry([
    Part.Circle(App.Vector(55, 123, 0), App.Vector(0, 0, 1), 8.5),
    Part.Circle(App.Vector(75, 123, 0), App.Vector(0, 0, 1), 8.5),
    Part.Circle(App.Vector(75, 73, 0), App.Vector(0, 0, 1), 8.5),
    Part.Circle(App.Vector(55, 73, 0), App.Vector(0, 0, 1), 8.5),
], False)
sketch23.addConstraint([
    Sketcher.Constraint("Equal", 0, 1),
    Sketcher.Constraint("Equal", 1, 2),
    Sketcher.Constraint("Equal", 2, 3),
    Sketcher.Constraint("Horizontal", 0, 3, 1, 3),
    Sketcher.Constraint("Horizontal", 2, 3, 3, 3),
    Sketcher.Constraint("Vertical", 1, 3, 2, 3),
    Sketcher.Constraint("Vertical", 0, 3, 3, 3),
    Sketcher.Constraint("Diameter", 0, 17.0),
    Sketcher.Constraint("DistanceX", -1, 1, 0, 3, 55.0),
    Sketcher.Constraint("DistanceY", -1, 1, 0, 3, 123.0),
    Sketcher.Constraint("DistanceX", -1, 1, 1, 3, 75.0),
    Sketcher.Constraint("DistanceY", -1, 1, 2, 3, 73.0),
])
pocket22 = body.newObject("PartDesign::Pocket", "Pocket021")
pocket22.Profile = sketch23
pocket22.Length = 6

doc.recompute()
